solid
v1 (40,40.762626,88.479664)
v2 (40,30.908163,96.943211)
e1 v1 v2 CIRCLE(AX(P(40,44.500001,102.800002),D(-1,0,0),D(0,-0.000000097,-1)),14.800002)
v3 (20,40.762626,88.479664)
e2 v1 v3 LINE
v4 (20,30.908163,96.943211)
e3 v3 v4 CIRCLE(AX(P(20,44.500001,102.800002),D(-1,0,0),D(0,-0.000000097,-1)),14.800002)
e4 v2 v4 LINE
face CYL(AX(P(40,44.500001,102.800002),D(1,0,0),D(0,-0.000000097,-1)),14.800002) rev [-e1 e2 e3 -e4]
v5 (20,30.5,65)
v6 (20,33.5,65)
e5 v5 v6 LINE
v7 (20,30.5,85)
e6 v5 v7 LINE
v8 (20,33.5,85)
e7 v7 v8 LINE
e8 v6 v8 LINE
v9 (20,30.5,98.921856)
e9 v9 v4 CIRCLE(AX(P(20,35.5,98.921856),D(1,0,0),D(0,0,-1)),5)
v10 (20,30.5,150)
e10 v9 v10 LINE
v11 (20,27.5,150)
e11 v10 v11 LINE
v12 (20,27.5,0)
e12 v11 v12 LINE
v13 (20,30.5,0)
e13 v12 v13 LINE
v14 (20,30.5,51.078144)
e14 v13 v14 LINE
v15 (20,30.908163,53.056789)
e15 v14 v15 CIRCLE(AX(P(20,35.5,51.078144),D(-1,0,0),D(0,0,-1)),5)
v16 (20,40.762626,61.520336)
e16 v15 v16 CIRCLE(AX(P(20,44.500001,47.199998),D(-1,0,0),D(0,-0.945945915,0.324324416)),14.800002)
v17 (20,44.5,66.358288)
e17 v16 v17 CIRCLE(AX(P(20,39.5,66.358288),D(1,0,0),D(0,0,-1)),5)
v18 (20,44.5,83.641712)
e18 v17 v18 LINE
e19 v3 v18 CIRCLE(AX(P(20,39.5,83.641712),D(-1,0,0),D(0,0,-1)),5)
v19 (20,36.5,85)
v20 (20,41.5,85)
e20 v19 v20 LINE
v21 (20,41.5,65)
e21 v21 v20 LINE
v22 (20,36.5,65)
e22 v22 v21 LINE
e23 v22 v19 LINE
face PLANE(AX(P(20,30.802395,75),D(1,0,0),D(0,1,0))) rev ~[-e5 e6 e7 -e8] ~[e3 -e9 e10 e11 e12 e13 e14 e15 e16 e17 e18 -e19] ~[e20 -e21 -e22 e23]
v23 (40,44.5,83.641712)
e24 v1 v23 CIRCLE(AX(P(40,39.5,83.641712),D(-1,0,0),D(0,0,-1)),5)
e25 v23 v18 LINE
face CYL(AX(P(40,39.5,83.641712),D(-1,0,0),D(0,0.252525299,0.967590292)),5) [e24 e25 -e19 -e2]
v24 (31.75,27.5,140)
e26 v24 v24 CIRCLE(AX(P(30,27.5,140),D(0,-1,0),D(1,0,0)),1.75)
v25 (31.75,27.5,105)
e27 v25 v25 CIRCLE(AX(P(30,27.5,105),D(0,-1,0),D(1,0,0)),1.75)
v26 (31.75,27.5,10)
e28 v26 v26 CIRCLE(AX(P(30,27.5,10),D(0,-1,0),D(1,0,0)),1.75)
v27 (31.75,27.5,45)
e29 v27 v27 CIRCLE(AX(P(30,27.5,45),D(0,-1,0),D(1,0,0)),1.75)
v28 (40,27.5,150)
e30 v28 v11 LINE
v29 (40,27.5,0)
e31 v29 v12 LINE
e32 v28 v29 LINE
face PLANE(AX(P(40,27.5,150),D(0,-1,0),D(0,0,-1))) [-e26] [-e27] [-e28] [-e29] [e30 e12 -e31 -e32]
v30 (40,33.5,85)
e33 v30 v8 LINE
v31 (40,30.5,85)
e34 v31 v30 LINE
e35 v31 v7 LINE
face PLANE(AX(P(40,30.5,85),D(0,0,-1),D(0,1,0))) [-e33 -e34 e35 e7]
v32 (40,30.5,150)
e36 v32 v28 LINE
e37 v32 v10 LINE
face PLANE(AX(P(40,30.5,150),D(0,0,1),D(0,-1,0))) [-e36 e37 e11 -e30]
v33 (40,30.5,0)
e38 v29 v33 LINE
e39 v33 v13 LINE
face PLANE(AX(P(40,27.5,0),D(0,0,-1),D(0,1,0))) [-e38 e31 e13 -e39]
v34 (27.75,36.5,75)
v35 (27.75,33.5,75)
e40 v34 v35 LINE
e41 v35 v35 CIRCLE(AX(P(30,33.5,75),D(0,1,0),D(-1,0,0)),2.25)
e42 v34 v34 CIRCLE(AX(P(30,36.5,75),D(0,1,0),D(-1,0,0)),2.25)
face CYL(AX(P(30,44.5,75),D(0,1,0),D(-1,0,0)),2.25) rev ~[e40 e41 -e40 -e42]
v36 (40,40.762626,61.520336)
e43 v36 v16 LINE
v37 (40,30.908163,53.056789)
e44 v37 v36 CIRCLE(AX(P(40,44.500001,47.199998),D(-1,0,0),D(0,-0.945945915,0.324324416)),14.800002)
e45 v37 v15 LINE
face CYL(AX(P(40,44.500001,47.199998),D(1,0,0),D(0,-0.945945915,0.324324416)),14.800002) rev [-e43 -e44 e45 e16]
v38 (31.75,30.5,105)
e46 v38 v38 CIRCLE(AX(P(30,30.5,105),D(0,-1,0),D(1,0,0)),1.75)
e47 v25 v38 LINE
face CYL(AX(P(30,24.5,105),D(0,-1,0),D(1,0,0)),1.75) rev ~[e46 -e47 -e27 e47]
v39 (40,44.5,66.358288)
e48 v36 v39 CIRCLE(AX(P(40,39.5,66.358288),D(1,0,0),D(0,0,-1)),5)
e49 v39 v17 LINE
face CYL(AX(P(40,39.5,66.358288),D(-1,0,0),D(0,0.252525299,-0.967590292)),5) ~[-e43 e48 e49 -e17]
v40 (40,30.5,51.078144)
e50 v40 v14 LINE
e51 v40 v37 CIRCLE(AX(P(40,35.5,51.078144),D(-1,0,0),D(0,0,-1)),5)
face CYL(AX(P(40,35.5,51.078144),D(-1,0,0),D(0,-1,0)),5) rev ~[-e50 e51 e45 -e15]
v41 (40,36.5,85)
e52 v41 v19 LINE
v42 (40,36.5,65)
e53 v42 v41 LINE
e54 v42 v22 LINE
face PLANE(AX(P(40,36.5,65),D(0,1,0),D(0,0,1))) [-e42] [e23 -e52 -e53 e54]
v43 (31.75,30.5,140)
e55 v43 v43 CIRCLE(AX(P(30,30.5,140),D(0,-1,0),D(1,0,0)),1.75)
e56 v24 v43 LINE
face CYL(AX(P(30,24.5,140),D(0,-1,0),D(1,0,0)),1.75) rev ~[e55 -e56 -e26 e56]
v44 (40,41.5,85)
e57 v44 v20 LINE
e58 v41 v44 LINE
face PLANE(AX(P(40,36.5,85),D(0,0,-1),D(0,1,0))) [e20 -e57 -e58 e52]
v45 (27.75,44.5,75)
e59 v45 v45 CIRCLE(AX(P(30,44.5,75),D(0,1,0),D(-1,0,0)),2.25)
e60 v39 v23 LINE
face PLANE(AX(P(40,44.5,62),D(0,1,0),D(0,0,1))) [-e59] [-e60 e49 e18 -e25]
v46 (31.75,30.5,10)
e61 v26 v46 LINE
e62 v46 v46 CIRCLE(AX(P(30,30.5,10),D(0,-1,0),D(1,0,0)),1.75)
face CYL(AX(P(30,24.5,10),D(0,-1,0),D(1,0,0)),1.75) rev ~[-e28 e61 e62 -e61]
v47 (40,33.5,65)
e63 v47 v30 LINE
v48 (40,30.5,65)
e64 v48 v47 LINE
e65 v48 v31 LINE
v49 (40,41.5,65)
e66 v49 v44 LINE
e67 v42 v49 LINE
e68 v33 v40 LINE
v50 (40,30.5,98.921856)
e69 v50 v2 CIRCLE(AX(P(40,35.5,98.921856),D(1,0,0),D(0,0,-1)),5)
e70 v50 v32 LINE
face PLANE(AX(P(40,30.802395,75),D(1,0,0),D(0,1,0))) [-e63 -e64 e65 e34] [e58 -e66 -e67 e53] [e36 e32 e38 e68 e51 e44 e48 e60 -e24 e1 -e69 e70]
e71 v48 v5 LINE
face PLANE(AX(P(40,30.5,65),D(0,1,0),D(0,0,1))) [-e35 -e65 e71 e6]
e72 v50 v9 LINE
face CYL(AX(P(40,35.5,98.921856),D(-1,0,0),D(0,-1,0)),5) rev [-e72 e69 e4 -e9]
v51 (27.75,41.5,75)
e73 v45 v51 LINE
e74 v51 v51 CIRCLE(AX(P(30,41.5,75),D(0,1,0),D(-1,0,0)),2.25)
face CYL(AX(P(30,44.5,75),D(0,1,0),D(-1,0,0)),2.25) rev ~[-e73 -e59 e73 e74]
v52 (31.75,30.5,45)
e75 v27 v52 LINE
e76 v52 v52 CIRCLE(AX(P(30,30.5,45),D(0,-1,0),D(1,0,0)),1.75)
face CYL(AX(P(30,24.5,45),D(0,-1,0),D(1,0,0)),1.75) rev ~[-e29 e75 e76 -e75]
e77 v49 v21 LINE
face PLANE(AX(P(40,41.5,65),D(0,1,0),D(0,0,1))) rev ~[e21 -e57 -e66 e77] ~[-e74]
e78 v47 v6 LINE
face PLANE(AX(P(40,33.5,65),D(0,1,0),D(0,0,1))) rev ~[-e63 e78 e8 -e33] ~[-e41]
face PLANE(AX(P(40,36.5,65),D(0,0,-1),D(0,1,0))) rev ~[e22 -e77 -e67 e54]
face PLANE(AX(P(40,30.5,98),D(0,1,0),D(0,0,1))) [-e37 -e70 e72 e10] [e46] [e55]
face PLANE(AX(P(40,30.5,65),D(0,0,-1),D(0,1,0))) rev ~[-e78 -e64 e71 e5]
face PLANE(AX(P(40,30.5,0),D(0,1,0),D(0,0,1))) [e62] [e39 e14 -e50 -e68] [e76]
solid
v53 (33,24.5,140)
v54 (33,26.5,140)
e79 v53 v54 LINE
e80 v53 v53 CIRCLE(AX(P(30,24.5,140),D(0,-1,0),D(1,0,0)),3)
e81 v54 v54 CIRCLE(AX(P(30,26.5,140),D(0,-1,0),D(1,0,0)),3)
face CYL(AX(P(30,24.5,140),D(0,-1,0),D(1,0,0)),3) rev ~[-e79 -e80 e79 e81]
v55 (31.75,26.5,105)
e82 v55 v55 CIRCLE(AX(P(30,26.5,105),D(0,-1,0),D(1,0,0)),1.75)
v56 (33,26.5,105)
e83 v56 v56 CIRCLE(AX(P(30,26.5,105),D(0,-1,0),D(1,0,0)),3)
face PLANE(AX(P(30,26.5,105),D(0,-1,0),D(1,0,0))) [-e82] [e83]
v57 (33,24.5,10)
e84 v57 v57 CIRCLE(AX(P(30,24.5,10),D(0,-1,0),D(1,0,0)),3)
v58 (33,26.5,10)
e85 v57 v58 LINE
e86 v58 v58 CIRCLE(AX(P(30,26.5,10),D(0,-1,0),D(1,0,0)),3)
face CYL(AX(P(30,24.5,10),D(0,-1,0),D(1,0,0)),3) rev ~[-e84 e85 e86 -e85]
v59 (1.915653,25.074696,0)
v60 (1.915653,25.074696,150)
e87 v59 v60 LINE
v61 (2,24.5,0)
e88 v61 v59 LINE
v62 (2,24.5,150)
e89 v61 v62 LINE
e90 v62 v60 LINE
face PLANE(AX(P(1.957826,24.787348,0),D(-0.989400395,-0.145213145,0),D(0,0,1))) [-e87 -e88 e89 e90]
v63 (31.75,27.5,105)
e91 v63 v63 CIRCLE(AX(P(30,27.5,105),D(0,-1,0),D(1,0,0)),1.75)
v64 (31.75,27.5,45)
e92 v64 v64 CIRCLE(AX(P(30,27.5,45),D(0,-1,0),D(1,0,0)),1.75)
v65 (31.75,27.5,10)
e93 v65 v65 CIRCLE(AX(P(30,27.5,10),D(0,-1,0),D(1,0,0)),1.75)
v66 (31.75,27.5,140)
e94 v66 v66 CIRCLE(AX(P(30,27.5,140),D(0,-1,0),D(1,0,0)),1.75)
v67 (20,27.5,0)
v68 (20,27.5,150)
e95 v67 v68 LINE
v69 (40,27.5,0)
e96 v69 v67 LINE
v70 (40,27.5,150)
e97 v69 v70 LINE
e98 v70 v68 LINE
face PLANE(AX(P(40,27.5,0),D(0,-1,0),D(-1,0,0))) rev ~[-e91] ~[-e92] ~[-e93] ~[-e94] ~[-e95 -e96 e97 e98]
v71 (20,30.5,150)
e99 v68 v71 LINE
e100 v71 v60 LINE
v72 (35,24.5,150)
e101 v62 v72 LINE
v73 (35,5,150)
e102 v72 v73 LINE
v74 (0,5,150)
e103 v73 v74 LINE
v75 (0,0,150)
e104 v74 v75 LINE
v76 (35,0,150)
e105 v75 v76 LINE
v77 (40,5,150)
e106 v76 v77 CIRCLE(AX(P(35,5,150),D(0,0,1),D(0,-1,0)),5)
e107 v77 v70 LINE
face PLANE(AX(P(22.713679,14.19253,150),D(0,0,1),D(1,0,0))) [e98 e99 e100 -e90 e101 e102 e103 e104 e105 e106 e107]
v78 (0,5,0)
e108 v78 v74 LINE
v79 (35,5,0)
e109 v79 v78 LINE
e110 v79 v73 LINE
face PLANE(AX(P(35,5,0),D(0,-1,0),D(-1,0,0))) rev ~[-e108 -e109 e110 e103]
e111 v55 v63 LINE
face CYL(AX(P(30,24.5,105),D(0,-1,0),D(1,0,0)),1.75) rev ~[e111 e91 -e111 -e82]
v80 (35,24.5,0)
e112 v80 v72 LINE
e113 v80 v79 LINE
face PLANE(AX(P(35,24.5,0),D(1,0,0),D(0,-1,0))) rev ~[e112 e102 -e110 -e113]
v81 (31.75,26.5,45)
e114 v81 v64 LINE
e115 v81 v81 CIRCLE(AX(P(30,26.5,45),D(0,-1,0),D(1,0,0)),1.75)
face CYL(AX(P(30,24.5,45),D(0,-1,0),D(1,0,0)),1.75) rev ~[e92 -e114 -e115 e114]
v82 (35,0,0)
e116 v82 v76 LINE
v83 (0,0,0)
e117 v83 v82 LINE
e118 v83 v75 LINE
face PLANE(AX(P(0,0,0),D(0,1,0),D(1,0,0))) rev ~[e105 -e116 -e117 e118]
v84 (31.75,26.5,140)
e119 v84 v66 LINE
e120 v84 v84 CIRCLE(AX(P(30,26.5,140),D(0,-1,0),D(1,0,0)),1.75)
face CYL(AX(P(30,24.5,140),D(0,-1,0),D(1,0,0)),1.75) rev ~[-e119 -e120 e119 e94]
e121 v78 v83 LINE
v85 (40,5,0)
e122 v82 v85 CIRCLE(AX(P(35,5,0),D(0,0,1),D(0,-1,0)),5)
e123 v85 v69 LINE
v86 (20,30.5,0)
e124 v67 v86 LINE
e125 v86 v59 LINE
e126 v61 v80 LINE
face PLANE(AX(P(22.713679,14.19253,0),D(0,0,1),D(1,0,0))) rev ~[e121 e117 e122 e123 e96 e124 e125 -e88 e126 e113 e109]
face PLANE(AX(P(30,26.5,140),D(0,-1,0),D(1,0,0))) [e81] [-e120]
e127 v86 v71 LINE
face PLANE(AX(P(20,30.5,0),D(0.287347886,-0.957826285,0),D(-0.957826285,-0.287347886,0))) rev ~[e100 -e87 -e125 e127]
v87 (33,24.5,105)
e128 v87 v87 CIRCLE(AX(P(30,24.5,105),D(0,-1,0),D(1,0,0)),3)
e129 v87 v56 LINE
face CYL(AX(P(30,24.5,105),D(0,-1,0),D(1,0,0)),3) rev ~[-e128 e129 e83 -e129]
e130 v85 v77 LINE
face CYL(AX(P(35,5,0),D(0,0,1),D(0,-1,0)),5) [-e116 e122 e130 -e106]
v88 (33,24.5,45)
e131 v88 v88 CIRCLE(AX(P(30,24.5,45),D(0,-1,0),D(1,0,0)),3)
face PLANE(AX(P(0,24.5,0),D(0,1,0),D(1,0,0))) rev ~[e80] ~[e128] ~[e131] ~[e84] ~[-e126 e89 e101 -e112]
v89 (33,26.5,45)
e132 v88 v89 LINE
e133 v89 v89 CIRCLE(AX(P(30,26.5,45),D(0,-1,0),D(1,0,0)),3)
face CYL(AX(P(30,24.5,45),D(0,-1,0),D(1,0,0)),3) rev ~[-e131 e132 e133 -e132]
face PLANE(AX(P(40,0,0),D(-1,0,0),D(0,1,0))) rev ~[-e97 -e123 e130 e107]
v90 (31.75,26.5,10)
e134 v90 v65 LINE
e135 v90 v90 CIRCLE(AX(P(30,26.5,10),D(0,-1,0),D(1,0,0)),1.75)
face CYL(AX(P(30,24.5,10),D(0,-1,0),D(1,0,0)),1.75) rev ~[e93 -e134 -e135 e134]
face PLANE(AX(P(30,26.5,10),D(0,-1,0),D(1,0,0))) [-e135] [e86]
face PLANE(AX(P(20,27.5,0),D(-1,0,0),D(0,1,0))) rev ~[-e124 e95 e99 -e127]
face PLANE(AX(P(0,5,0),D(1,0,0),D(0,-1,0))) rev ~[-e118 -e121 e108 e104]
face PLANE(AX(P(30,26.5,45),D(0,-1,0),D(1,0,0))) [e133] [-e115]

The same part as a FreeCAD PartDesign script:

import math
import FreeCAD as App
import Part
import Sketcher

V = App.Vector


def edges_at(feature, points):
    """Names of the edges that pass closest to the given points."""
    edges = feature.Shape.Edges
    near = lambda p: min(range(len(edges)), key=lambda i: edges[i].distToShape(Part.Vertex(*p))[0])
    return sorted({f"Edge{near(p) + 1}" for p in points})


def add_polygon(sketch, points):
    """Adds a closed chain of lines whose ends are joined by coincident constraints."""
    first, n = sketch.GeometryCount, len(points)
    for a, b in zip(points, points[1:] + points[:1]):
        sketch.addGeometry(Part.LineSegment(App.Vector(*a, 0), App.Vector(*b, 0)), False)
    for i in range(n):
        sketch.addConstraint(Sketcher.Constraint("Coincident", first + i, 2, first + (i + 1) % n, 1))

doc = App.newDocument("Part")
body = doc.addObject("PartDesign::Body", "Body")

# Sketch on XY plane
sketch1 = doc.addObject("Sketcher::SketchObject", "Sketch")
body.addObject(sketch1)
sketch1.AttachmentSupport = (doc.XY_Plane, [""])
sketch1.MapMode = "FlatFace"
add_polygon(sketch1, [(0, 0), (40, 0), (40, 27.5), (20, 27.5), (20, 30.5), (0, 24.5), (35, 24.5), (35, 5), (0, 5)])  # lines 0-8
sketch1.addConstraint([
    Sketcher.Constraint("Horizontal", 0),
    Sketcher.Constraint("Vertical", 1),
    Sketcher.Constraint("Horizontal", 2),
    Sketcher.Constraint("Vertical", 3),
    Sketcher.Constraint("Horizontal", 5),
    Sketcher.Constraint("Vertical", 6),
    Sketcher.Constraint("Horizontal", 7),
    Sketcher.Constraint("Vertical", 8),
    Sketcher.Constraint("Coincident", 8, 2, -1, 1),
    Sketcher.Constraint("PointOnObject", 4, 2, -2),
    Sketcher.Constraint("DistanceX", 0, 1, 0, 2, 40.0),
    Sketcher.Constraint("DistanceX", 2, 2, 2, 1, 20.0),
    Sketcher.Constraint("DistanceX", 5, 1, 5, 2, 35.0),
    Sketcher.Constraint("DistanceY", 3, 1, 3, 2, 3.0),
    Sketcher.Constraint("DistanceY", 8, 2, 8, 1, 5.0),
    Sketcher.Constraint("DistanceY", 1, 1, 1, 2, 27.5),
    Sketcher.Constraint("DistanceY", 6, 2, 6, 1, 19.5),
])
pad1 = doc.addObject("PartDesign::Pad", "Pad")
body.addObject(pad1)
pad1.Profile = sketch1
pad1.Length = 150
body2 = doc.addObject("PartDesign::Body", "Body001")

# Sketch on YZ plane
sketch2 = doc.addObject("Sketcher::SketchObject", "Sketch001")
body2.addObject(sketch2)
sketch2.AttachmentSupport = (doc.getObject("YZ_Plane001"), [""])
sketch2.MapMode = "FlatFace"
sketch2.AttachmentOffset = App.Placement(V(0, 0, 40), App.Rotation())
sketch2.addGeometry(Part.LineSegment(V(30.5, 150, 0), V(27.5, 150, 0)), False)  # 0
sketch2.addGeometry(Part.LineSegment(V(27.5, 150, 0), V(27.5, 0, 0)), False)  # 1
sketch2.addGeometry(Part.LineSegment(V(27.5, 0, 0), V(30.5, 0, 0)), False)  # 2
sketch2.addGeometry(Part.LineSegment(V(30.5, 0, 0), V(30.5, 52, 0)), False)  # 3
sketch2.addGeometry(Part.ArcOfCircle(Part.Circle(V(44.500001, 47.199998, 0), V(0, 0, 1), 14.800002), math.radians(90.000006), math.radians(161.07535)), False)  # 4
sketch2.addGeometry(Part.LineSegment(V(44.5, 62, 0), V(44.5, 88, 0)), False)  # 5
sketch2.addGeometry(Part.ArcOfCircle(Part.Circle(V(44.500001, 102.800002, 0), V(0, 0, 1), 14.800002), math.radians(-161.07535), math.radians(-90.000006)), False)  # 6
sketch2.addGeometry(Part.LineSegment(V(30.5, 98, 0), V(30.5, 150, 0)), False)  # 7
add_polygon(sketch2, [(33.5, 65), (30.5, 65), (30.5, 85), (33.5, 85)])  # lines 8-11
add_polygon(sketch2, [(41.5, 65), (36.5, 65), (36.5, 85), (41.5, 85)])  # lines 12-15
sketch2.addConstraint([
    Sketcher.Constraint("Coincident", 0, 2, 1, 1),
    Sketcher.Constraint("Coincident", 1, 2, 2, 1),
    Sketcher.Constraint("Coincident", 2, 2, 3, 1),
    Sketcher.Constraint("Coincident", 3, 2, 4, 2),
    Sketcher.Constraint("Coincident", 4, 1, 5, 1),
    Sketcher.Constraint("Coincident", 5, 2, 6, 2),
    Sketcher.Constraint("Coincident", 6, 1, 7, 1),
    Sketcher.Constraint("Coincident", 7, 2, 0, 1),
    Sketcher.Constraint("Horizontal", 0),
    Sketcher.Constraint("Vertical", 1),
    Sketcher.Constraint("Horizontal", 2),
    Sketcher.Constraint("Vertical", 3),
    Sketcher.Constraint("Vertical", 5),
    Sketcher.Constraint("Vertical", 7),
    Sketcher.Constraint("Horizontal", 8),
    Sketcher.Constraint("Vertical", 9),
    Sketcher.Constraint("Horizontal", 10),
    Sketcher.Constraint("Vertical", 11),
    Sketcher.Constraint("Horizontal", 12),
    Sketcher.Constraint("Vertical", 13),
    Sketcher.Constraint("Horizontal", 14),
    Sketcher.Constraint("Vertical", 15),
    Sketcher.Constraint("Equal", 4, 6),
    Sketcher.Constraint("PointOnObject", 1, 2, -1),
    Sketcher.Constraint("Horizontal", 11, 2, 12, 2),
    Sketcher.Constraint("Horizontal", 10, 2, 13, 2),
    Sketcher.Constraint("Vertical", 4, 3, 6, 3),
    Sketcher.Constraint("Vertical", 6, 3, 4, 1),
    Sketcher.Constraint("Vertical", 3, 2, 6, 1),
    Sketcher.Constraint("Vertical", 7, 2, 8, 2),
    Sketcher.Constraint("Equal", 2, 8),
    Sketcher.Constraint("Equal", 3, 7),
    Sketcher.Constraint("DistanceX", 0, 2, 0, 1, 3.0),
    Sketcher.Constraint("DistanceX", 12, 2, 12, 1, 5.0),
    Sketcher.Constraint("DistanceY", 1, 2, 1, 1, 150.0),
    Sketcher.Constraint("DistanceY", 3, 1, 3, 2, 52.0),
    Sketcher.Constraint("DistanceY", 5, 1, 5, 2, 26.0),
    Sketcher.Constraint("DistanceY", 9, 1, 9, 2, 20.0),
    Sketcher.Constraint("DistanceY", -1, 1, 8, 2, 65.0),
    Sketcher.Constraint("DistanceX", 0, 2, 6, 3, 17.000001),
    Sketcher.Constraint("DistanceX", 11, 2, 12, 2, 3.0),
    Sketcher.Constraint("DistanceX", -1, 1, 4, 3, 44.500001),
])
pad2 = doc.addObject("PartDesign::Pad", "Pad001")
body2.addObject(pad2)
pad2.Profile = sketch2
pad2.Length = 20
pad2.Reversed = True
body3 = doc.addObject("PartDesign::Body", "Body002")
body3.AllowCompound = True

# Sketch on XZ plane
sketch3 = doc.addObject("Sketcher::SketchObject", "Sketch002")
body3.addObject(sketch3)
sketch3.AttachmentSupport = (doc.getObject("XZ_Plane002"), [""])
sketch3.MapMode = "FlatFace"
sketch3.AttachmentOffset = App.Placement(V(0, 0, -24.5), App.Rotation())
sketch3.addGeometry([
    Part.Circle(V(30, 140, 0), V(0, 0, 1), 1.75),
    Part.Circle(V(30, 105, 0), V(0, 0, 1), 1.75),
    Part.Circle(V(30, 45, 0), V(0, 0, 1), 1.75),
    Part.Circle(V(30, 10, 0), V(0, 0, 1), 1.75),
], False)
sketch3.addConstraint([
    Sketcher.Constraint("Equal", 0, 1),
    Sketcher.Constraint("Equal", 1, 2),
    Sketcher.Constraint("Equal", 2, 3),
    Sketcher.Constraint("Vertical", 0, 3, 1, 3),
    Sketcher.Constraint("Vertical", 1, 3, 2, 3),
    Sketcher.Constraint("Vertical", 2, 3, 3, 3),
    Sketcher.Constraint("Diameter", 0, 3.5),
    Sketcher.Constraint("DistanceX", -1, 1, 0, 3, 30.0),
    Sketcher.Constraint("DistanceY", -1, 1, 0, 3, 140.0),
    Sketcher.Constraint("DistanceY", -1, 1, 1, 3, 105.0),
    Sketcher.Constraint("DistanceY", -1, 1, 2, 3, 45.0),
    Sketcher.Constraint("DistanceY", -1, 1, 3, 3, 10.0),
])
pad3 = doc.addObject("PartDesign::Pad", "Pad002")
body3.addObject(pad3)
pad3.Profile = sketch3
pad3.Length = 6
pad3.Reversed = True
doc.recompute()

body4 = doc.addObject("PartDesign::Body", "Body003")
body4.BaseFeature = body3
boolean = doc.addObject("PartDesign::Boolean", "Boolean")
body.addObject(boolean)
boolean.Type = "Cut"
boolean.addObjects([body4])
doc.recompute()

# Sketch on XZ plane
sketch4 = doc.addObject("Sketcher::SketchObject", "Sketch003")
body.addObject(sketch4)
sketch4.AttachmentSupport = (doc.XZ_Plane, [""])
sketch4.MapMode = "FlatFace"
sketch4.AttachmentOffset = App.Placement(V(0, 0, -24.5), App.Rotation())
sketch4.addGeometry([
    Part.Circle(V(30, 140, 0), V(0, 0, 1), 3),  # 0
    Part.Circle(V(30, 140, 0), V(0, 0, 1), 1.75),  # 1
    Part.Circle(V(30, 105, 0), V(0, 0, 1), 3),  # 2
    Part.Circle(V(30, 105, 0), V(0, 0, 1), 1.75),  # 3
    Part.Circle(V(30, 45, 0), V(0, 0, 1), 3),  # 4
    Part.Circle(V(30, 45, 0), V(0, 0, 1), 1.75),  # 5
    Part.Circle(V(30, 10, 0), V(0, 0, 1), 3),  # 6
    Part.Circle(V(30, 10, 0), V(0, 0, 1), 1.75),  # 7
], False)
sketch4.addConstraint([
    Sketcher.Constraint("Coincident", 1, 3, 0, 3),
    Sketcher.Constraint("Coincident", 3, 3, 2, 3),
    Sketcher.Constraint("Coincident", 5, 3, 4, 3),
    Sketcher.Constraint("Coincident", 7, 3, 6, 3),
    Sketcher.Constraint("Equal", 0, 2),
    Sketcher.Constraint("Equal", 1, 3),
    Sketcher.Constraint("Equal", 2, 4),
    Sketcher.Constraint("Equal", 3, 5),
    Sketcher.Constraint("Equal", 4, 6),
    Sketcher.Constraint("Equal", 5, 7),
    Sketcher.Constraint("Vertical", 1, 3, 2, 3),
    Sketcher.Constraint("Vertical", 3, 3, 4, 3),
    Sketcher.Constraint("Vertical", 5, 3, 6, 3),
    Sketcher.Constraint("Diameter", 0, 6.0),
    Sketcher.Constraint("Diameter", 1, 3.5),
    Sketcher.Constraint("DistanceX", -1, 1, 0, 3, 30.0),
    Sketcher.Constraint("DistanceY", -1, 1, 0, 3, 140.0),
    Sketcher.Constraint("DistanceY", -1, 1, 2, 3, 105.0),
    Sketcher.Constraint("DistanceY", -1, 1, 4, 3, 45.0),
    Sketcher.Constraint("DistanceY", -1, 1, 6, 3, 10.0),
])
pocket1 = doc.addObject("PartDesign::Pocket", "Pocket")
body.addObject(pocket1)
pocket1.Profile = sketch4
pocket1.Length = 2
doc.recompute()

fillet = doc.addObject("PartDesign::Fillet", "Fillet")
body.addObject(fillet)
fillet.Base = (pocket1, edges_at(pocket1, [(40, 0, 75)]))
fillet.Radius = 5
doc.recompute()

chamfer = doc.addObject("PartDesign::Chamfer", "Chamfer")
body.addObject(chamfer)
chamfer.Base = (fillet, edges_at(fillet, [(0, 24.5, 75)]))
chamfer.Size = 2
doc.recompute()

boolean2 = doc.addObject("PartDesign::Boolean", "Boolean001")
body2.addObject(boolean2)
boolean2.Type = "Cut"
boolean2.addObjects([body3])

# Sketch on XZ plane
sketch5 = doc.addObject("Sketcher::SketchObject", "Sketch004")
body2.addObject(sketch5)
sketch5.AttachmentSupport = (doc.getObject("XZ_Plane001"), [""])
sketch5.MapMode = "FlatFace"
sketch5.AttachmentOffset = App.Placement(V(0, 0, -44.5), App.Rotation())
sketch5.addGeometry(Part.Circle(V(30, 75, 0), V(0, 0, 1), 2.25), False)
sketch5.addConstraint([
    Sketcher.Constraint("Diameter", 0, 4.5),
    Sketcher.Constraint("DistanceX", -1, 1, 0, 3, 30.0),
    Sketcher.Constraint("DistanceY", -1, 1, 0, 3, 75.0),
])
pocket2 = doc.addObject("PartDesign::Pocket", "Pocket001")
body2.addObject(pocket2)
pocket2.Profile = sketch5
pocket2.Length = 14
pocket2.Reversed = True
doc.recompute()

fillet2 = doc.addObject("PartDesign::Fillet", "Fillet001")
body2.addObject(fillet2)
fillet2.Base = (pocket2, edges_at(pocket2, [
    (30, 30.5, 98),
    (30, 30.5, 52),
    (30, 44.5, 88),
    (30, 44.5, 62),
]))
fillet2.Radius = 5

doc.recompute()
